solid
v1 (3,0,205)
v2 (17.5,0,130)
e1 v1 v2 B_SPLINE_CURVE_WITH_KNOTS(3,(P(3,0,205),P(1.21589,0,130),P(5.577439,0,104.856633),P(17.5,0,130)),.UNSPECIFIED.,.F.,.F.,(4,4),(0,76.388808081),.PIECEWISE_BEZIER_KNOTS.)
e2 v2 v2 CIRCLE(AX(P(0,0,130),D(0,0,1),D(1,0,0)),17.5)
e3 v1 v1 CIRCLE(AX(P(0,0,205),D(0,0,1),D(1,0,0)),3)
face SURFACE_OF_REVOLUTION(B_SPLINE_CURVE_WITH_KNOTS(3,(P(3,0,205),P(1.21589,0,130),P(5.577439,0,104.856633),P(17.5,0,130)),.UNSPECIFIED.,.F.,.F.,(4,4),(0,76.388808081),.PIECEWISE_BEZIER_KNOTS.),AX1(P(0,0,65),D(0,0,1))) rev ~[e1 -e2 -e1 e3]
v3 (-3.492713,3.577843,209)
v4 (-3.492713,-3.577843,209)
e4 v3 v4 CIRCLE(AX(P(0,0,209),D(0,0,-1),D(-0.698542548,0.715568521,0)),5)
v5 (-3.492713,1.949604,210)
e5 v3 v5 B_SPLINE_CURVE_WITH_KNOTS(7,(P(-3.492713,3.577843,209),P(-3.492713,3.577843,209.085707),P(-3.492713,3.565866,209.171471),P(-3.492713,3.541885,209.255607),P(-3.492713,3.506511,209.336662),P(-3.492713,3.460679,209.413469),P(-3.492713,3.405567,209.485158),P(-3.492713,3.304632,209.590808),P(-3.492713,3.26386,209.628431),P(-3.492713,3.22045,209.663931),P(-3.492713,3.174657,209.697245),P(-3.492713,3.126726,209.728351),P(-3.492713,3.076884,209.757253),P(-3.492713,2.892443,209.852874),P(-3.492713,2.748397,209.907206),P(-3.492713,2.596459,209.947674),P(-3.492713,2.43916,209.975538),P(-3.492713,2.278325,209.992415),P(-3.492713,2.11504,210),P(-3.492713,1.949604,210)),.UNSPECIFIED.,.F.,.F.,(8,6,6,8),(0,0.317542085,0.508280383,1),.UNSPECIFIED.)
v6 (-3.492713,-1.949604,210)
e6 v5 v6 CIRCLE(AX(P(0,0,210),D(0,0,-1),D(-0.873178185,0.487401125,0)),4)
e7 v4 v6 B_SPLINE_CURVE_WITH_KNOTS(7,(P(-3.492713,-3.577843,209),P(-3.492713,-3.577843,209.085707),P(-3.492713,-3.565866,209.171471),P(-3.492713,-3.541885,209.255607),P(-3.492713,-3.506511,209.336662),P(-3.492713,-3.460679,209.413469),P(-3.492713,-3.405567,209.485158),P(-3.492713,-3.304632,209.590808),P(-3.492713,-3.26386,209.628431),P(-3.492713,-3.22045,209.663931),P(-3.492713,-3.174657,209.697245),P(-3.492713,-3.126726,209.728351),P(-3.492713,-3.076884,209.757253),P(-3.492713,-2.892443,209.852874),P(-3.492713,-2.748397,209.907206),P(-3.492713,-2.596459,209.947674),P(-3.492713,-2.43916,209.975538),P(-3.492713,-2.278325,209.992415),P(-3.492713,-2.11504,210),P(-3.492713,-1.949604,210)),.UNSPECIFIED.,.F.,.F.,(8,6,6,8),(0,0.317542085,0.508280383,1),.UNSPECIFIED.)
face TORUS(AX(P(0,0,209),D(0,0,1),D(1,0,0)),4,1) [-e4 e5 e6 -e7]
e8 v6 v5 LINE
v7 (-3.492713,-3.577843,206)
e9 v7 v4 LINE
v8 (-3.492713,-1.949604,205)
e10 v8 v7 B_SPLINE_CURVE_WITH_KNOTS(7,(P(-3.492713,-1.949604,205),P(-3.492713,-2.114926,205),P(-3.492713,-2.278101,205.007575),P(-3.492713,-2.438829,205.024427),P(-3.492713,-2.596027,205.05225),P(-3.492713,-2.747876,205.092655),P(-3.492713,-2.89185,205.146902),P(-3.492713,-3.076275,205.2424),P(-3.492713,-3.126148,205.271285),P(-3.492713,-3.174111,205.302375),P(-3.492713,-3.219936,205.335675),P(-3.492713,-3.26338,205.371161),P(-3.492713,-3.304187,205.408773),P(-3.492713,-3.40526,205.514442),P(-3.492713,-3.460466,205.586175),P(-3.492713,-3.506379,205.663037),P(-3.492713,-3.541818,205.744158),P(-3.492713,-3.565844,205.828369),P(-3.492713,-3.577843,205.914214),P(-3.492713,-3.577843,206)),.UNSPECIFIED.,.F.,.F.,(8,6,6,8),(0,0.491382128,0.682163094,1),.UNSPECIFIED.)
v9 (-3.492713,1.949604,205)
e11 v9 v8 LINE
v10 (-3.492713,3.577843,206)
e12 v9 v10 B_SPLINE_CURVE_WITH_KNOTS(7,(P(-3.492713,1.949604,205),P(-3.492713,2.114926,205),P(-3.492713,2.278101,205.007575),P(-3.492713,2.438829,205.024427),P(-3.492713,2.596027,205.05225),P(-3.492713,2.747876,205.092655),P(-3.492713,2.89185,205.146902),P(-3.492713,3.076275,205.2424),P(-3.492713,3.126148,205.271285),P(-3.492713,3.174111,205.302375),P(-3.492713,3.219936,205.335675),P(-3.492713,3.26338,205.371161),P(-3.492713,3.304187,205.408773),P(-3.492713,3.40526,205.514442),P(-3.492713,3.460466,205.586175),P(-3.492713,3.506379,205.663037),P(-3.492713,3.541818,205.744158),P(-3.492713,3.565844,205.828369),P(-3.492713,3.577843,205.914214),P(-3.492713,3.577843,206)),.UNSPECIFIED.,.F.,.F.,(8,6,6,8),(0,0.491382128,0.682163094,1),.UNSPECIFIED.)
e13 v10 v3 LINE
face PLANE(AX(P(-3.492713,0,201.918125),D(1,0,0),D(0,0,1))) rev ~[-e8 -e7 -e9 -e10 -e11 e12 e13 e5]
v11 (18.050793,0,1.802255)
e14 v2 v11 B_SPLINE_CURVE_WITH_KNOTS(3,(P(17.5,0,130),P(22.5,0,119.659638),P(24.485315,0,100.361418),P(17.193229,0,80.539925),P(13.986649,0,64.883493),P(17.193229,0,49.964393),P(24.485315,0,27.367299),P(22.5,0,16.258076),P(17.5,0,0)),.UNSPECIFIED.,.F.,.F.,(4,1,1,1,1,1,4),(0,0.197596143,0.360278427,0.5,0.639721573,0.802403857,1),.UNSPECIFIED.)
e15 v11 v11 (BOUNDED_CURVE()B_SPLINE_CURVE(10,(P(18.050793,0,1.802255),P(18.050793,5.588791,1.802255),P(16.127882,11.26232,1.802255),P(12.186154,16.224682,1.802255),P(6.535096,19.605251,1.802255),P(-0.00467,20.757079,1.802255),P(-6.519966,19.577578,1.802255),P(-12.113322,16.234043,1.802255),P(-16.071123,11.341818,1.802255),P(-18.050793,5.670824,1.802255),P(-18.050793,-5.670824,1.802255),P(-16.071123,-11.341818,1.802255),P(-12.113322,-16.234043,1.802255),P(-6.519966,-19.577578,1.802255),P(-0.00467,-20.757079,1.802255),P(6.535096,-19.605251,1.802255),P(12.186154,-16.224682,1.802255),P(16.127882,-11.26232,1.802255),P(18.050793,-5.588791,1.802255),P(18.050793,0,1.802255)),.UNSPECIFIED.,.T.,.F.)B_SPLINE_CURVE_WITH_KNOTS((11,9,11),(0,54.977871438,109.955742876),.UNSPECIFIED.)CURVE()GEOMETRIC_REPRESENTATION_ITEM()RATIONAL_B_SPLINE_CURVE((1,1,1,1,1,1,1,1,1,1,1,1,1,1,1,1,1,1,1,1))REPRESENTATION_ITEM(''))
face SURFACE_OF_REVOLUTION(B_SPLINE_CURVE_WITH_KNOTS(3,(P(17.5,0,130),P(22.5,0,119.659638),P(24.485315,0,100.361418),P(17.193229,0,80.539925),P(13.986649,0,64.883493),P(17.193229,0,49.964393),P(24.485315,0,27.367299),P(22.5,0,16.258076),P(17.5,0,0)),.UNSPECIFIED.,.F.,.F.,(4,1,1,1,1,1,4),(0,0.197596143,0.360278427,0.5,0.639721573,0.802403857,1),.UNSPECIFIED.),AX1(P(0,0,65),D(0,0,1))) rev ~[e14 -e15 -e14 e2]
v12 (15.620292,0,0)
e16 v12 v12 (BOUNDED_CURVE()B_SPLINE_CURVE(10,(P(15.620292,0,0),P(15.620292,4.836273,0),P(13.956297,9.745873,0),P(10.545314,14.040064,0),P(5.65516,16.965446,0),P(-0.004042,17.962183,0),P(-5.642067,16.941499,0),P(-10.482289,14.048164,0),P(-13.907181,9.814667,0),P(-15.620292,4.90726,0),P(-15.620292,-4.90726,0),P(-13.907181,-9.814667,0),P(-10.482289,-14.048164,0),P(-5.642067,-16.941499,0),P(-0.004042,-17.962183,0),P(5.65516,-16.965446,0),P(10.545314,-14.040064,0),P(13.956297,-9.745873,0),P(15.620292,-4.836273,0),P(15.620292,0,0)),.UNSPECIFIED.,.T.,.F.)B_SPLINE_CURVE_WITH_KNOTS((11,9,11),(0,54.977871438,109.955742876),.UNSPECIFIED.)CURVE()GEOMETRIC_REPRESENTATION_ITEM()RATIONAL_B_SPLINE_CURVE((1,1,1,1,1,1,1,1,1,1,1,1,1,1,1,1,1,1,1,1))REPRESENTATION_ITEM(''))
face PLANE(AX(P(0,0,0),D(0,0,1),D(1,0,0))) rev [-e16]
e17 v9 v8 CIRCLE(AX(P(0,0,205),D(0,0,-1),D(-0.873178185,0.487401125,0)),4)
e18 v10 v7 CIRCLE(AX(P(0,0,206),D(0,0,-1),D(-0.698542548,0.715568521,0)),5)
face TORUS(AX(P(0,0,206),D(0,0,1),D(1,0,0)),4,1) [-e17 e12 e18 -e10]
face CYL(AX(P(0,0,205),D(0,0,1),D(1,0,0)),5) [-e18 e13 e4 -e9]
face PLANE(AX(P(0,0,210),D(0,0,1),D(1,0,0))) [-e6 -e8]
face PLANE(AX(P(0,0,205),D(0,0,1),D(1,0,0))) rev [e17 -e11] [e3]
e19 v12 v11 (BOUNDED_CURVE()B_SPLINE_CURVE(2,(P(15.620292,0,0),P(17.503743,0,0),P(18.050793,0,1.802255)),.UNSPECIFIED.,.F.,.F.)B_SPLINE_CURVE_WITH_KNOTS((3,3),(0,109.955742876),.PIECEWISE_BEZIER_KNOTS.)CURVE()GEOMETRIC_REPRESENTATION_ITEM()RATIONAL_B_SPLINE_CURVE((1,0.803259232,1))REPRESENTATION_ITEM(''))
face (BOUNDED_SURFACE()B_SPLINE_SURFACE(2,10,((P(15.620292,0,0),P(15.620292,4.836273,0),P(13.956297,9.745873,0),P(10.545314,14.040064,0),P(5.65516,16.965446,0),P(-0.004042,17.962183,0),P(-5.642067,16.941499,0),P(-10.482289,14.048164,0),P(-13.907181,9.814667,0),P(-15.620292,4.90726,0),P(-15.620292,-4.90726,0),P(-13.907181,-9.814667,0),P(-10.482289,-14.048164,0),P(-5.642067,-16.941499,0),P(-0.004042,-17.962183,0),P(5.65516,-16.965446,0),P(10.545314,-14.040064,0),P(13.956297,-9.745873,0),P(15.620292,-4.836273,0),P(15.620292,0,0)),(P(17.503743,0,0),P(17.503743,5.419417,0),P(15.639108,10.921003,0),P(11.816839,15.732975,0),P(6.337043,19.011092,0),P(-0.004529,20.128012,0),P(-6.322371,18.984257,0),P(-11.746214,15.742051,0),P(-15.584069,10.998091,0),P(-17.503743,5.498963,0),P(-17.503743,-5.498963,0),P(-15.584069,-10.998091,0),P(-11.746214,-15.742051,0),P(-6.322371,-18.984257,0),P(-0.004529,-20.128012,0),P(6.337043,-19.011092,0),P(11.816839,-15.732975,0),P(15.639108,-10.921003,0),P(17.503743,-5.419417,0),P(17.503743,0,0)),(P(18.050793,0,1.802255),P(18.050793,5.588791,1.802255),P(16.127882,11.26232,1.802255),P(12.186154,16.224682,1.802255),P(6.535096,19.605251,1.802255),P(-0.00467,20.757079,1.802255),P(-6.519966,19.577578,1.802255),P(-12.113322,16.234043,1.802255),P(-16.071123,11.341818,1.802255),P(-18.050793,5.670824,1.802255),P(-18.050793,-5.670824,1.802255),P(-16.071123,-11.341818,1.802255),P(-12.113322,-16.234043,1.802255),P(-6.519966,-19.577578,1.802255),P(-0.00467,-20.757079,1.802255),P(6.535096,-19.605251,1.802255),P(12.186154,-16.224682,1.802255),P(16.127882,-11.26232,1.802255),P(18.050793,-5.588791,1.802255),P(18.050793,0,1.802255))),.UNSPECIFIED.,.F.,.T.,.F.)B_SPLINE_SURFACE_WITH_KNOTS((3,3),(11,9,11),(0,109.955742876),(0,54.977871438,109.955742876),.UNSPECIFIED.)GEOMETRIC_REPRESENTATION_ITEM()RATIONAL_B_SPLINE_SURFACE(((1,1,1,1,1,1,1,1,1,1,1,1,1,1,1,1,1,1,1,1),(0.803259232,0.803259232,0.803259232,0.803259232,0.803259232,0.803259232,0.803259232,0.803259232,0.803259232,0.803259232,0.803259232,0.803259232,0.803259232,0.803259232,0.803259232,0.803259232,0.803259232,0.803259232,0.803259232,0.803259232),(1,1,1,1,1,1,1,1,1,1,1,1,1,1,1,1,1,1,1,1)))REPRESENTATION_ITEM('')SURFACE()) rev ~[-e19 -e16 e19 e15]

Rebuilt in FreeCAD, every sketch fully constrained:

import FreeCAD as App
import Part
import Sketcher
from FreeCAD import Vector
Q = App.Units.Quantity


def edges_at(feature, points):
    """Names of the edges that pass closest to the given points."""
    edges = feature.Shape.Edges
    near = lambda p: min(range(len(edges)), key=lambda i: edges[i].distToShape(Part.Vertex(*p))[0])
    return sorted({f"Edge{near(p) + 1}" for p in points})


def add_polygon(sketch, points):
    """Adds a closed chain of lines whose ends are joined by coincident constraints."""
    first, n = sketch.GeometryCount, len(points)
    for a, b in zip(points, points[1:] + points[:1]):
        sketch.addGeometry(Part.LineSegment(App.Vector(*a, 0), App.Vector(*b, 0)), False)
    for i in range(n):
        sketch.addConstraint(Sketcher.Constraint("Coincident", first + i, 2, first + (i + 1) % n, 1))

doc = App.newDocument("Part")
params = doc.addObject("Spreadsheet::Sheet", "Params")
for row, (alias, value) in enumerate([
    ("sketch1_width", "2 mm"),
    ("sketch1_height", "5 mm"),
    ("revolution_angle", "360 deg"),
    ("fillet_radius", "2.54 mm"),
    ("fillet2_radius", "1 mm"),
    ("pocket1_length", "44.8 mm"),
], start=1):
    params.set(f"A{row}", alias)
    params.set(f"B{row}", "=" + value)
    params.setAlias(f"B{row}", alias)

body = doc.addObject("PartDesign::Body", "Body")

# Sketch on XZ plane
sketch1 = body.newObject("Sketcher::SketchObject", "Sketch")
sketch1.AttachmentSupport = (doc.getObject("XZ_Plane"), [""])
sketch1.MapMode = "FlatFace"
sketch1.addGeometry([
    Part.LineSegment(Vector(0, 0, 0), Vector(17.5, 0, 0)),  # 0
    Part.BSplineCurve([Vector(17.5, 130, 0), Vector(22.5, 119.659638, 0), Vector(24.485315, 100.361418, 0), Vector(17.193229, 80.539925, 0), Vector(13.986649, 64.883493, 0), Vector(17.193229, 49.964393, 0), Vector(24.485315, 27.367299, 0), Vector(22.5, 16.258076, 0), Vector(17.5, 0, 0)], [4, 1, 1, 1, 1, 1, 4], [0, 0.197596143, 0.360278427, 0.5, 0.639721573, 0.802403857, 1], False, 3, [1, 1, 1, 1, 1, 1, 1, 1, 1], False),  # 1
    Part.BSplineCurve([Vector(3, 205, 0), Vector(1.21589, 130, 0), Vector(5.577439, 104.856633, 0), Vector(17.5, 130, 0)], [4, 4], [0, 76.388808081], False, 3, [1, 1, 1, 1], False),  # 2
    Part.LineSegment(Vector(3, 205, 0), Vector(5, 205, 0)),  # 3
    Part.LineSegment(Vector(5, 205, 0), Vector(5, 210, 0)),  # 4
    Part.LineSegment(Vector(5, 210, 0), Vector(0, 210, 0)),  # 5
    Part.LineSegment(Vector(0, 210, 0), Vector(0, 0, 0)),  # 6
], False)
sketch1.addConstraint([
    Sketcher.Constraint("Block", 1),
    Sketcher.Constraint("Block", 2),
    Sketcher.Constraint("Coincident", 0, 2, 1, 2),
    Sketcher.Constraint("Coincident", 2, 1, 3, 1),
    Sketcher.Constraint("Coincident", 3, 2, 4, 1),
    Sketcher.Constraint("Coincident", 4, 2, 5, 1),
    Sketcher.Constraint("Coincident", 5, 2, 6, 1),
    Sketcher.Constraint("Coincident", 6, 2, 0, 1),
    Sketcher.Constraint("Horizontal", 0),
    Sketcher.Constraint("Horizontal", 3),
    Sketcher.Constraint("Vertical", 4),
    Sketcher.Constraint("Horizontal", 5),
    Sketcher.Constraint("Vertical", 6),
    Sketcher.Constraint("PointOnObject", 5, 2, -2),
    Sketcher.Constraint("DistanceX", 3, 1, 3, 2, Q("2 mm")),
    Sketcher.Constraint("DistanceY", 4, 1, 4, 2, Q("5 mm")),
])
sketch1.setExpression("Constraints[14]", "Params.sketch1_width")
sketch1.setExpression("Constraints[15]", "Params.sketch1_height")
revolution = body.newObject("PartDesign::Revolution", "Revolution")
revolution.Profile = sketch1
revolution.ReferenceAxis = (sketch1, ["V_Axis"])
revolution.setExpression("Angle", "Params.revolution_angle")
doc.recompute()

fillet = body.newObject("PartDesign::Fillet", "Fillet")
fillet.Base = (revolution, edges_at(revolution, [(-17.5, 0, 0)]))
fillet.setExpression("Radius", "Params.fillet_radius")
doc.recompute()

fillet2 = body.newObject("PartDesign::Fillet", "Fillet001")
fillet2.Base = (fillet, edges_at(fillet, [(-5, 0, 205), (-5, 0, 210)]))
fillet2.setExpression("Radius", "Params.fillet2_radius")

# Sketch on XZ plane
sketch2 = body.newObject("Sketcher::SketchObject", "Sketch001")
sketch2.AttachmentSupport = (doc.getObject("XZ_Plane"), [""])
sketch2.MapMode = "FlatFace"
add_polygon(sketch2, [(-23, 218), (-23, 202), (-3, 202), (-3, 218)])  # lines 0-3
sketch2.addConstraint([
    Sketcher.Constraint("Vertical", 0),
    Sketcher.Constraint("Horizontal", 1),
    Sketcher.Constraint("Vertical", 2),
    Sketcher.Constraint("Horizontal", 3),
    Sketcher.Constraint("DistanceX", 1, 1, 1, 2, Q("19.709239 mm")),
    Sketcher.Constraint("DistanceY", 0, 2, 0, 1, Q("15.709206 mm")),
    Sketcher.Constraint("DistanceX", 0, 2, -1, 1, Q("23.201952 mm")),
    Sketcher.Constraint("DistanceY", -1, 1, 2, 2, Q("217.627332 mm")),
])
pocket1 = body.newObject("PartDesign::Pocket", "Pocket")
pocket1.Profile = sketch2
pocket1.setExpression("Length", "Params.pocket1_length")
pocket1.Midplane = True

doc.recompute()
